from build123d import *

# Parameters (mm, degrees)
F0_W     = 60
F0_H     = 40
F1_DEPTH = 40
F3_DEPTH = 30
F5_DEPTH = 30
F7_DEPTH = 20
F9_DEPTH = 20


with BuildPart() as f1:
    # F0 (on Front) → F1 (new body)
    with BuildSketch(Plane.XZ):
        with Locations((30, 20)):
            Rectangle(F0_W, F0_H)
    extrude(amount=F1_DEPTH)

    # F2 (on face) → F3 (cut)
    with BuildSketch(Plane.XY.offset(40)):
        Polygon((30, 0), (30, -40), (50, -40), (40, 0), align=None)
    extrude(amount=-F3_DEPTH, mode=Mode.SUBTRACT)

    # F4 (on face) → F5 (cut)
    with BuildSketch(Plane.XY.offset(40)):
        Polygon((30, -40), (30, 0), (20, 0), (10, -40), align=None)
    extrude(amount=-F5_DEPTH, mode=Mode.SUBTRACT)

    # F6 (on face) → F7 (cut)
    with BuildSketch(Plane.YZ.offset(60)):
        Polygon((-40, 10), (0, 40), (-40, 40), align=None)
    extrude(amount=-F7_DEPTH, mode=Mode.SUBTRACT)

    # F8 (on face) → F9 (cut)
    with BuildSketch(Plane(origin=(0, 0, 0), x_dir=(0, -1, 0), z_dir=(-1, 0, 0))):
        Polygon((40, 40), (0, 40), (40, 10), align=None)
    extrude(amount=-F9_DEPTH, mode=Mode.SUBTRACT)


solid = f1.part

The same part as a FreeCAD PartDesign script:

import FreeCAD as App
import Part
import Sketcher
from FreeCAD import Vector
Q = App.Units.Quantity

doc = App.newDocument("Part")
body = doc.addObject("PartDesign::Body", "Body")

# Sketch on XZ plane
sketch1 = doc.addObject("Sketcher::SketchObject", "Sketch")
body.addObject(sketch1)
sketch1.AttachmentSupport = (doc.XZ_Plane, [""])
sketch1.MapMode = "FlatFace"
sketch1.addGeometry([
    Part.LineSegment(Vector(0, 40, 0), Vector(0, 0, 0)),
    Part.LineSegment(Vector(0, 0, 0), Vector(60, 0, 0)),
    Part.LineSegment(Vector(60, 0, 0), Vector(60, 40, 0)),
    Part.LineSegment(Vector(60, 40, 0), Vector(0, 40, 0)),
], False)
sketch1.addConstraint([
    Sketcher.Constraint("Coincident", 0, 2, 1, 1),
    Sketcher.Constraint("Coincident", 1, 2, 2, 1),
    Sketcher.Constraint("Coincident", 2, 2, 3, 1),
    Sketcher.Constraint("Coincident", 3, 2, 0, 1),
    Sketcher.Constraint("Vertical", 0),
    Sketcher.Constraint("Horizontal", 1),
    Sketcher.Constraint("Vertical", 2),
    Sketcher.Constraint("Horizontal", 3),
    Sketcher.Constraint("Coincident", 0, 2, -1, 1),
    Sketcher.Constraint("DistanceX", 1, 1, 1, 2, Q("60 mm")),
    Sketcher.Constraint("DistanceY", 0, 2, 0, 1, Q("40 mm")),
])
pad1 = doc.addObject("PartDesign::Pad", "Pad")
body.addObject(pad1)
pad1.Profile = sketch1
pad1.Length = 40

# Sketch on XY plane
sketch2 = doc.addObject("Sketcher::SketchObject", "Sketch001")
body.addObject(sketch2)
sketch2.AttachmentSupport = (doc.XY_Plane, [""])
sketch2.MapMode = "FlatFace"
sketch2.AttachmentOffset = App.Placement(Vector(0, 0, 40), App.Rotation())
sketch2.addGeometry([
    Part.LineSegment(Vector(30, 0, 0), Vector(30, -40, 0)),
    Part.LineSegment(Vector(30, -40, 0), Vector(50, -40, 0)),
    Part.LineSegment(Vector(50, -40, 0), Vector(40, 0, 0)),
    Part.LineSegment(Vector(40, 0, 0), Vector(30, 0, 0)),
], False)
sketch2.addConstraint([
    Sketcher.Constraint("Coincident", 0, 2, 1, 1),
    Sketcher.Constraint("Coincident", 1, 2, 2, 1),
    Sketcher.Constraint("Coincident", 2, 2, 3, 1),
    Sketcher.Constraint("Coincident", 3, 2, 0, 1),
    Sketcher.Constraint("Vertical", 0),
    Sketcher.Constraint("Horizontal", 1),
    Sketcher.Constraint("Horizontal", 3),
    Sketcher.Constraint("PointOnObject", 2, 2, -1),
    Sketcher.Constraint("DistanceX", 1, 1, 1, 2, Q("20 mm")),
    Sketcher.Constraint("DistanceX", 3, 2, 3, 1, Q("10 mm")),
    Sketcher.Constraint("DistanceY", 0, 2, 0, 1, Q("40 mm")),
    Sketcher.Constraint("DistanceX", -1, 1, 0, 2, Q("30 mm")),
])
pocket1 = doc.addObject("PartDesign::Pocket", "Pocket")
body.addObject(pocket1)
pocket1.Profile = sketch2
pocket1.Length = 30

# Sketch on XY plane
sketch3 = doc.addObject("Sketcher::SketchObject", "Sketch002")
body.addObject(sketch3)
sketch3.AttachmentSupport = (doc.XY_Plane, [""])
sketch3.MapMode = "FlatFace"
sketch3.AttachmentOffset = App.Placement(Vector(0, 0, 40), App.Rotation())
sketch3.addGeometry([
    Part.LineSegment(Vector(30, -40, 0), Vector(30, 0, 0)),
    Part.LineSegment(Vector(30, 0, 0), Vector(20, 0, 0)),
    Part.LineSegment(Vector(20, 0, 0), Vector(10, -40, 0)),
    Part.LineSegment(Vector(10, -40, 0), Vector(30, -40, 0)),
], False)
sketch3.addConstraint([
    Sketcher.Constraint("Coincident", 0, 2, 1, 1),
    Sketcher.Constraint("Coincident", 1, 2, 2, 1),
    Sketcher.Constraint("Coincident", 2, 2, 3, 1),
    Sketcher.Constraint("Coincident", 3, 2, 0, 1),
    Sketcher.Constraint("Vertical", 0),
    Sketcher.Constraint("Horizontal", 1),
    Sketcher.Constraint("Horizontal", 3),
    Sketcher.Constraint("PointOnObject", 0, 2, -1),
    Sketcher.Constraint("DistanceX", 1, 2, 1, 1, Q("10 mm")),
    Sketcher.Constraint("DistanceX", 3, 1, 3, 2, Q("20 mm")),
    Sketcher.Constraint("DistanceY", 0, 1, 0, 2, Q("40 mm")),
    Sketcher.Constraint("DistanceX", -1, 1, 0, 2, Q("30 mm")),
])
pocket2 = doc.addObject("PartDesign::Pocket", "Pocket001")
body.addObject(pocket2)
pocket2.Profile = sketch3
pocket2.Length = 30

# Sketch on YZ plane
sketch4 = doc.addObject("Sketcher::SketchObject", "Sketch003")
body.addObject(sketch4)
sketch4.AttachmentSupport = (doc.YZ_Plane, [""])
sketch4.MapMode = "FlatFace"
sketch4.AttachmentOffset = App.Placement(Vector(0, 0, 60), App.Rotation())
sketch4.addGeometry([
    Part.LineSegment(Vector(-40, 10, 0), Vector(0, 40, 0)),
    Part.LineSegment(Vector(0, 40, 0), Vector(-40, 40, 0)),
    Part.LineSegment(Vector(-40, 40, 0), Vector(-40, 10, 0)),
], False)
sketch4.addConstraint([
    Sketcher.Constraint("Coincident", 0, 2, 1, 1),
    Sketcher.Constraint("Coincident", 1, 2, 2, 1),
    Sketcher.Constraint("Coincident", 2, 2, 0, 1),
    Sketcher.Constraint("Horizontal", 1),
    Sketcher.Constraint("Vertical", 2),
    Sketcher.Constraint("PointOnObject", 0, 2, -2),
    Sketcher.Constraint("DistanceX", 1, 2, 1, 1, Q("40 mm")),
    Sketcher.Constraint("DistanceY", 2, 2, 2, 1, Q("30 mm")),
    Sketcher.Constraint("DistanceY", -1, 1, 0, 2, Q("40 mm")),
])
pocket3 = doc.addObject("PartDesign::Pocket", "Pocket002")
body.addObject(pocket3)
pocket3.Profile = sketch4
pocket3.Length = 20

# Sketch on YZ plane
sketch5 = doc.addObject("Sketcher::SketchObject", "Sketch004")
body.addObject(sketch5)
sketch5.AttachmentSupport = (doc.YZ_Plane, [""])
sketch5.MapMode = "FlatFace"
sketch5.addGeometry([
    Part.LineSegment(Vector(-40, 40, 0), Vector(0, 40, 0)),
    Part.LineSegment(Vector(0, 40, 0), Vector(-40, 10, 0)),
    Part.LineSegment(Vector(-40, 10, 0), Vector(-40, 40, 0)),
], False)
sketch5.addConstraint([
    Sketcher.Constraint("Coincident", 0, 2, 1, 1),
    Sketcher.Constraint("Coincident", 1, 2, 2, 1),
    Sketcher.Constraint("Coincident", 2, 2, 0, 1),
    Sketcher.Constraint("Horizontal", 0),
    Sketcher.Constraint("Vertical", 2),
    Sketcher.Constraint("PointOnObject", 0, 2, -2),
    Sketcher.Constraint("DistanceX", 0, 1, 0, 2, Q("40 mm")),
    Sketcher.Constraint("DistanceY", 2, 1, 2, 2, Q("30 mm")),
    Sketcher.Constraint("DistanceY", -1, 1, 0, 2, Q("40 mm")),
])
pocket4 = doc.addObject("PartDesign::Pocket", "Pocket003")
body.addObject(pocket4)
pocket4.Profile = sketch5
pocket4.Length = 20
pocket4.Reversed = True

doc.recompute()
